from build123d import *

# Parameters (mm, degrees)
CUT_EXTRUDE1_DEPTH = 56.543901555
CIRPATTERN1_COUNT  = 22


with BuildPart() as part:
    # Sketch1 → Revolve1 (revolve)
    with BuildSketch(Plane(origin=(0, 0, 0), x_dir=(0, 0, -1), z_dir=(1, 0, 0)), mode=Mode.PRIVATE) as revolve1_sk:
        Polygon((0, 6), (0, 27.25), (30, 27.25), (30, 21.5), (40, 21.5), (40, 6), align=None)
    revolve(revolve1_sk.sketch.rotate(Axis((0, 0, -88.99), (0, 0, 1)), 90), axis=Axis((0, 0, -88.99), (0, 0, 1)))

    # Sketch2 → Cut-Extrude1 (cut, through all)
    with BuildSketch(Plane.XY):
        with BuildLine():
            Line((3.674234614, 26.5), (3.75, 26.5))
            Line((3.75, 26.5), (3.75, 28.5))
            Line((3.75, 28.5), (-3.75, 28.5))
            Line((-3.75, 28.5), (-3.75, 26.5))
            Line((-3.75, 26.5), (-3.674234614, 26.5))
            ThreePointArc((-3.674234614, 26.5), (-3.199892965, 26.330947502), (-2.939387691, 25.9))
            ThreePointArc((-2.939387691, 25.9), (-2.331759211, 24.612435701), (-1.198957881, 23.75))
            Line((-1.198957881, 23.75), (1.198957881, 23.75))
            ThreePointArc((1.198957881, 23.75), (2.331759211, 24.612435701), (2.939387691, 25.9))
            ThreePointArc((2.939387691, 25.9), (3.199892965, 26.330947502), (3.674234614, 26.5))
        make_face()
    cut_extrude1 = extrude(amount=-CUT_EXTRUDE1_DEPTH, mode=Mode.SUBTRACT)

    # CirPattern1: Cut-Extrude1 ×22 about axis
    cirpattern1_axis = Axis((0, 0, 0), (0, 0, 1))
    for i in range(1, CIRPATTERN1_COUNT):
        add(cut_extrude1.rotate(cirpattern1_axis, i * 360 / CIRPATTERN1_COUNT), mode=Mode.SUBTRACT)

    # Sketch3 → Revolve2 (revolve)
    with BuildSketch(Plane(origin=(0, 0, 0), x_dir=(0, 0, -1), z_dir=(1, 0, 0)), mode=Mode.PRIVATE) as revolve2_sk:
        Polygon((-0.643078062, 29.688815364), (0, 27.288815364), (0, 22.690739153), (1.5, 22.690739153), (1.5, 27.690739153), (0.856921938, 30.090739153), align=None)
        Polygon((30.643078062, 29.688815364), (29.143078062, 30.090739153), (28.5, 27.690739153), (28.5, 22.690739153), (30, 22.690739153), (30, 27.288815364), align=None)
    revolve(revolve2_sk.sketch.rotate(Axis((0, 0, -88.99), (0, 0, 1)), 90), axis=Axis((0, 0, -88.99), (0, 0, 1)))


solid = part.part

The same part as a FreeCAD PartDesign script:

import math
import FreeCAD as App
import Part
import Sketcher
Q = App.Units.Quantity


def add_polygon(sketch, points):
    """Adds a closed chain of lines whose ends are joined by coincident constraints."""
    first, n = sketch.GeometryCount, len(points)
    for a, b in zip(points, points[1:] + points[:1]):
        sketch.addGeometry(Part.LineSegment(App.Vector(*a, 0), App.Vector(*b, 0)), False)
    for i in range(n):
        sketch.addConstraint(Sketcher.Constraint("Coincident", first + i, 2, first + (i + 1) % n, 1))

doc = App.newDocument("Part")
params = doc.addObject("Spreadsheet::Sheet", "Params")
for row, (alias, value) in enumerate([
    ("sketch1_height", "40 mm"),
    ("sketch1_height2", "10 mm"),
    ("sketch1_width", "15.5 mm"),
    ("sketch1_width2", "21.25 mm"),
    ("revolution_angle", "360 deg"),
    ("sketch2_radius", "3 mm"),
    ("sketch2_height", "2 mm"),
    ("sketch2_radius2", "0.75 mm"),
    ("sketch2_width", "7.5 mm"),
    ("sketch3_width", "5 mm"),
    ("sketch3_height", "1.5 mm"),
    ("revolution2_angle", "360 deg"),
], start=1):
    params.set(f"A{row}", alias)
    params.set(f"B{row}", "=" + value)
    params.setAlias(f"B{row}", alias)

body = doc.addObject("PartDesign::Body", "Body")

# Sketch on YZ plane
sketch1 = body.newObject("Sketcher::SketchObject", "Sketch")
sketch1.AttachmentSupport = (doc.getObject("YZ_Plane"), [""])
sketch1.MapMode = "FlatFace"
add_polygon(sketch1, [(27.25, 0), (6, 0), (6, -40), (21.5, -40), (21.5, -30), (27.25, -30)])  # lines 0-5
sketch1.addConstraint([
    Sketcher.Constraint("Horizontal", 0),
    Sketcher.Constraint("Vertical", 1),
    Sketcher.Constraint("Horizontal", 2),
    Sketcher.Constraint("Vertical", 3),
    Sketcher.Constraint("Horizontal", 4),
    Sketcher.Constraint("Vertical", 5),
    Sketcher.Constraint("PointOnObject", 0, 2, -1),
    Sketcher.Constraint("DistanceY", 1, 2, 1, 1, 40.0),
    Sketcher.Constraint("DistanceY", 3, 1, 3, 2, 10.0),
    Sketcher.Constraint("DistanceX", 2, 1, 2, 2, 15.5),
    Sketcher.Constraint("DistanceX", -1, 1, 0, 2, 6.0),
    Sketcher.Constraint("DistanceX", 0, 2, 0, 1, 21.25),
])
sketch1.setExpression("Constraints[13]", "Params.sketch1_height")
sketch1.setExpression("Constraints[14]", "Params.sketch1_height2")
sketch1.setExpression("Constraints[15]", "Params.sketch1_width")
sketch1.setExpression("Constraints[17]", "Params.sketch1_width2")
revolution = body.newObject("PartDesign::Revolution", "Revolution")
revolution.Profile = sketch1
revolution.ReferenceAxis = (sketch1, ["V_Axis"])
revolution.setExpression("Angle", "Params.revolution_angle")

# Sketch on XY plane
sketch2 = body.newObject("Sketcher::SketchObject", "Sketch001")
sketch2.AttachmentSupport = (doc.getObject("XY_Plane"), [""])
sketch2.MapMode = "FlatFace"
sketch2.addGeometry([
    Part.LineSegment(App.Vector(3.674235, 26.5, 0), App.Vector(3.75, 26.5, 0)),  # 0
    Part.LineSegment(App.Vector(3.75, 26.5, 0), App.Vector(3.75, 28.5, 0)),  # 1
    Part.LineSegment(App.Vector(3.75, 28.5, 0), App.Vector(-3.75, 28.5, 0)),  # 2
    Part.LineSegment(App.Vector(-3.75, 28.5, 0), App.Vector(-3.75, 26.5, 0)),  # 3
    Part.LineSegment(App.Vector(-3.75, 26.5, 0), App.Vector(-3.674235, 26.5, 0)),  # 4
    Part.ArcOfCircle(Part.Circle(App.Vector(-3.674235, 25.75, 0), App.Vector(0, 0, 1), 0.75), math.radians(11.536959), math.radians(90)),  # 5
    Part.ArcOfCircle(Part.Circle(App.Vector(0, 26.5, 0), App.Vector(0, 0, 1), 3), math.radians(-168.463041), math.radians(-113.556464)),  # 6
    Part.LineSegment(App.Vector(-1.198958, 23.75, 0), App.Vector(1.198958, 23.75, 0)),  # 7
    Part.ArcOfCircle(Part.Circle(App.Vector(0, 26.5, 0), App.Vector(0, 0, 1), 3), math.radians(-66.443536), math.radians(-11.536959)),  # 8
    Part.ArcOfCircle(Part.Circle(App.Vector(3.674235, 25.75, 0), App.Vector(0, 0, 1), 0.75), math.radians(90), math.radians(168.463041)),  # 9
], False)
sketch2.addConstraint([
    Sketcher.Constraint("Coincident", 0, 2, 1, 1),
    Sketcher.Constraint("Coincident", 1, 2, 2, 1),
    Sketcher.Constraint("Coincident", 2, 2, 3, 1),
    Sketcher.Constraint("Coincident", 3, 2, 4, 1),
    Sketcher.Constraint("Tangent", 4, 2, 5, 2),
    Sketcher.Constraint("Tangent", 5, 1, 6, 1),
    Sketcher.Constraint("Coincident", 6, 2, 7, 1),
    Sketcher.Constraint("Coincident", 7, 2, 8, 1),
    Sketcher.Constraint("Tangent", 8, 2, 9, 2),
    Sketcher.Constraint("Tangent", 9, 1, 0, 1),
    Sketcher.Constraint("Horizontal", 0),
    Sketcher.Constraint("Vertical", 1),
    Sketcher.Constraint("Horizontal", 2),
    Sketcher.Constraint("Vertical", 3),
    Sketcher.Constraint("Horizontal", 4),
    Sketcher.Constraint("Horizontal", 7),
    Sketcher.Constraint("Coincident", 8, 3, 6, 3),
    Sketcher.Constraint("Equal", 6, 8),
    Sketcher.Constraint("Equal", 5, 9),
    Sketcher.Constraint("Symmetric", 5, 3, 9, 3, -2),
    Sketcher.Constraint("Horizontal", 8, 3, 0, 2),
    Sketcher.Constraint("Equal", 0, 4),
    Sketcher.Constraint("Radius", 6, 3.0),
    Sketcher.Constraint("DistanceY", 1, 1, 1, 2, 2.0),
    Sketcher.Constraint("Radius", 5, 0.75),
    Sketcher.Constraint("DistanceX", 2, 2, 2, 1, 7.5),
    Sketcher.Constraint("DistanceY", 6, 2, 5, 3, 2.0),
    Sketcher.Constraint("DistanceY", -1, 1, 6, 3, 26.5),
])
sketch2.setExpression("Constraints[22]", "Params.sketch2_radius")
sketch2.setExpression("Constraints[23]", "Params.sketch2_height")
sketch2.setExpression("Constraints[24]", "Params.sketch2_radius2")
sketch2.setExpression("Constraints[25]", "Params.sketch2_width")
pocket1 = body.newObject("PartDesign::Pocket", "Pocket")
pocket1.Profile = sketch2
pocket1.Type = "ThroughAll"
doc.recompute()

polarpattern = body.newObject("PartDesign::PolarPattern", "PolarPattern")
polarpattern.Originals = [pocket1]
polarpattern.Axis = (doc.getObject("Z_Axis"), [""])
polarpattern.Angle = 360
polarpattern.Occurrences = 22
body.Tip = polarpattern

# Sketch on YZ plane
sketch3 = body.newObject("Sketcher::SketchObject", "Sketch002")
sketch3.AttachmentSupport = (doc.getObject("YZ_Plane"), [""])
sketch3.MapMode = "FlatFace"
add_polygon(sketch3, [(29.688815, 0.643078), (27.288815, 0), (22.690739, 0), (22.690739, -1.5), (27.690739, -1.5), (30.090739, -0.856922)])  # lines 0-5
add_polygon(sketch3, [(29.688815, -30.643078), (30.090739, -29.143078), (27.690739, -28.5), (22.690739, -28.5), (22.690739, -30), (27.288815, -30)])  # lines 6-11
sketch3.addConstraint([
    Sketcher.Constraint("Horizontal", 1),
    Sketcher.Constraint("Vertical", 2),
    Sketcher.Constraint("Horizontal", 3),
    Sketcher.Constraint("Horizontal", 8),
    Sketcher.Constraint("Vertical", 9),
    Sketcher.Constraint("Horizontal", 10),
    Sketcher.Constraint("PointOnObject", 0, 2, -1),
    Sketcher.Constraint("Parallel", 0, 4),
    Sketcher.Constraint("Perpendicular", 4, 5),
    Sketcher.Constraint("Perpendicular", 6, 7),
    Sketcher.Constraint("Parallel", 7, 11),
    Sketcher.Constraint("Vertical", 4, 2, 6, 2),
    Sketcher.Constraint("Vertical", 3, 2, 7, 2),
    Sketcher.Constraint("Vertical", 2, 2, 8, 2),
    Sketcher.Constraint("Vertical", 0, 2, 10, 2),
    Sketcher.Constraint("Vertical", 5, 2, 11, 2),
    Sketcher.Constraint("Equal", 2, 9),
    Sketcher.Constraint("Equal", 0, 4),
    Sketcher.Constraint("DistanceX", 3, 1, 3, 2, 5.0),
    Sketcher.Constraint("Angle", 0, Q("-165 deg")),
    Sketcher.Constraint("DistanceY", 2, 2, 2, 1, 1.5),
    Sketcher.Constraint("DistanceY", 9, 2, -1, 1, 30.0),
    Sketcher.Constraint("DistanceX", 3, 2, 4, 2, 2.4),
    Sketcher.Constraint("DistanceX", -1, 1, 1, 2, 22.690739),
])
sketch3.setExpression("Constraints[30]", "Params.sketch3_width")
sketch3.setExpression("Constraints[32]", "Params.sketch3_height")
revolution2 = body.newObject("PartDesign::Revolution", "Revolution001")
revolution2.Profile = sketch3
revolution2.ReferenceAxis = (sketch3, ["V_Axis"])
revolution2.setExpression("Angle", "Params.revolution2_angle")

doc.recompute()
